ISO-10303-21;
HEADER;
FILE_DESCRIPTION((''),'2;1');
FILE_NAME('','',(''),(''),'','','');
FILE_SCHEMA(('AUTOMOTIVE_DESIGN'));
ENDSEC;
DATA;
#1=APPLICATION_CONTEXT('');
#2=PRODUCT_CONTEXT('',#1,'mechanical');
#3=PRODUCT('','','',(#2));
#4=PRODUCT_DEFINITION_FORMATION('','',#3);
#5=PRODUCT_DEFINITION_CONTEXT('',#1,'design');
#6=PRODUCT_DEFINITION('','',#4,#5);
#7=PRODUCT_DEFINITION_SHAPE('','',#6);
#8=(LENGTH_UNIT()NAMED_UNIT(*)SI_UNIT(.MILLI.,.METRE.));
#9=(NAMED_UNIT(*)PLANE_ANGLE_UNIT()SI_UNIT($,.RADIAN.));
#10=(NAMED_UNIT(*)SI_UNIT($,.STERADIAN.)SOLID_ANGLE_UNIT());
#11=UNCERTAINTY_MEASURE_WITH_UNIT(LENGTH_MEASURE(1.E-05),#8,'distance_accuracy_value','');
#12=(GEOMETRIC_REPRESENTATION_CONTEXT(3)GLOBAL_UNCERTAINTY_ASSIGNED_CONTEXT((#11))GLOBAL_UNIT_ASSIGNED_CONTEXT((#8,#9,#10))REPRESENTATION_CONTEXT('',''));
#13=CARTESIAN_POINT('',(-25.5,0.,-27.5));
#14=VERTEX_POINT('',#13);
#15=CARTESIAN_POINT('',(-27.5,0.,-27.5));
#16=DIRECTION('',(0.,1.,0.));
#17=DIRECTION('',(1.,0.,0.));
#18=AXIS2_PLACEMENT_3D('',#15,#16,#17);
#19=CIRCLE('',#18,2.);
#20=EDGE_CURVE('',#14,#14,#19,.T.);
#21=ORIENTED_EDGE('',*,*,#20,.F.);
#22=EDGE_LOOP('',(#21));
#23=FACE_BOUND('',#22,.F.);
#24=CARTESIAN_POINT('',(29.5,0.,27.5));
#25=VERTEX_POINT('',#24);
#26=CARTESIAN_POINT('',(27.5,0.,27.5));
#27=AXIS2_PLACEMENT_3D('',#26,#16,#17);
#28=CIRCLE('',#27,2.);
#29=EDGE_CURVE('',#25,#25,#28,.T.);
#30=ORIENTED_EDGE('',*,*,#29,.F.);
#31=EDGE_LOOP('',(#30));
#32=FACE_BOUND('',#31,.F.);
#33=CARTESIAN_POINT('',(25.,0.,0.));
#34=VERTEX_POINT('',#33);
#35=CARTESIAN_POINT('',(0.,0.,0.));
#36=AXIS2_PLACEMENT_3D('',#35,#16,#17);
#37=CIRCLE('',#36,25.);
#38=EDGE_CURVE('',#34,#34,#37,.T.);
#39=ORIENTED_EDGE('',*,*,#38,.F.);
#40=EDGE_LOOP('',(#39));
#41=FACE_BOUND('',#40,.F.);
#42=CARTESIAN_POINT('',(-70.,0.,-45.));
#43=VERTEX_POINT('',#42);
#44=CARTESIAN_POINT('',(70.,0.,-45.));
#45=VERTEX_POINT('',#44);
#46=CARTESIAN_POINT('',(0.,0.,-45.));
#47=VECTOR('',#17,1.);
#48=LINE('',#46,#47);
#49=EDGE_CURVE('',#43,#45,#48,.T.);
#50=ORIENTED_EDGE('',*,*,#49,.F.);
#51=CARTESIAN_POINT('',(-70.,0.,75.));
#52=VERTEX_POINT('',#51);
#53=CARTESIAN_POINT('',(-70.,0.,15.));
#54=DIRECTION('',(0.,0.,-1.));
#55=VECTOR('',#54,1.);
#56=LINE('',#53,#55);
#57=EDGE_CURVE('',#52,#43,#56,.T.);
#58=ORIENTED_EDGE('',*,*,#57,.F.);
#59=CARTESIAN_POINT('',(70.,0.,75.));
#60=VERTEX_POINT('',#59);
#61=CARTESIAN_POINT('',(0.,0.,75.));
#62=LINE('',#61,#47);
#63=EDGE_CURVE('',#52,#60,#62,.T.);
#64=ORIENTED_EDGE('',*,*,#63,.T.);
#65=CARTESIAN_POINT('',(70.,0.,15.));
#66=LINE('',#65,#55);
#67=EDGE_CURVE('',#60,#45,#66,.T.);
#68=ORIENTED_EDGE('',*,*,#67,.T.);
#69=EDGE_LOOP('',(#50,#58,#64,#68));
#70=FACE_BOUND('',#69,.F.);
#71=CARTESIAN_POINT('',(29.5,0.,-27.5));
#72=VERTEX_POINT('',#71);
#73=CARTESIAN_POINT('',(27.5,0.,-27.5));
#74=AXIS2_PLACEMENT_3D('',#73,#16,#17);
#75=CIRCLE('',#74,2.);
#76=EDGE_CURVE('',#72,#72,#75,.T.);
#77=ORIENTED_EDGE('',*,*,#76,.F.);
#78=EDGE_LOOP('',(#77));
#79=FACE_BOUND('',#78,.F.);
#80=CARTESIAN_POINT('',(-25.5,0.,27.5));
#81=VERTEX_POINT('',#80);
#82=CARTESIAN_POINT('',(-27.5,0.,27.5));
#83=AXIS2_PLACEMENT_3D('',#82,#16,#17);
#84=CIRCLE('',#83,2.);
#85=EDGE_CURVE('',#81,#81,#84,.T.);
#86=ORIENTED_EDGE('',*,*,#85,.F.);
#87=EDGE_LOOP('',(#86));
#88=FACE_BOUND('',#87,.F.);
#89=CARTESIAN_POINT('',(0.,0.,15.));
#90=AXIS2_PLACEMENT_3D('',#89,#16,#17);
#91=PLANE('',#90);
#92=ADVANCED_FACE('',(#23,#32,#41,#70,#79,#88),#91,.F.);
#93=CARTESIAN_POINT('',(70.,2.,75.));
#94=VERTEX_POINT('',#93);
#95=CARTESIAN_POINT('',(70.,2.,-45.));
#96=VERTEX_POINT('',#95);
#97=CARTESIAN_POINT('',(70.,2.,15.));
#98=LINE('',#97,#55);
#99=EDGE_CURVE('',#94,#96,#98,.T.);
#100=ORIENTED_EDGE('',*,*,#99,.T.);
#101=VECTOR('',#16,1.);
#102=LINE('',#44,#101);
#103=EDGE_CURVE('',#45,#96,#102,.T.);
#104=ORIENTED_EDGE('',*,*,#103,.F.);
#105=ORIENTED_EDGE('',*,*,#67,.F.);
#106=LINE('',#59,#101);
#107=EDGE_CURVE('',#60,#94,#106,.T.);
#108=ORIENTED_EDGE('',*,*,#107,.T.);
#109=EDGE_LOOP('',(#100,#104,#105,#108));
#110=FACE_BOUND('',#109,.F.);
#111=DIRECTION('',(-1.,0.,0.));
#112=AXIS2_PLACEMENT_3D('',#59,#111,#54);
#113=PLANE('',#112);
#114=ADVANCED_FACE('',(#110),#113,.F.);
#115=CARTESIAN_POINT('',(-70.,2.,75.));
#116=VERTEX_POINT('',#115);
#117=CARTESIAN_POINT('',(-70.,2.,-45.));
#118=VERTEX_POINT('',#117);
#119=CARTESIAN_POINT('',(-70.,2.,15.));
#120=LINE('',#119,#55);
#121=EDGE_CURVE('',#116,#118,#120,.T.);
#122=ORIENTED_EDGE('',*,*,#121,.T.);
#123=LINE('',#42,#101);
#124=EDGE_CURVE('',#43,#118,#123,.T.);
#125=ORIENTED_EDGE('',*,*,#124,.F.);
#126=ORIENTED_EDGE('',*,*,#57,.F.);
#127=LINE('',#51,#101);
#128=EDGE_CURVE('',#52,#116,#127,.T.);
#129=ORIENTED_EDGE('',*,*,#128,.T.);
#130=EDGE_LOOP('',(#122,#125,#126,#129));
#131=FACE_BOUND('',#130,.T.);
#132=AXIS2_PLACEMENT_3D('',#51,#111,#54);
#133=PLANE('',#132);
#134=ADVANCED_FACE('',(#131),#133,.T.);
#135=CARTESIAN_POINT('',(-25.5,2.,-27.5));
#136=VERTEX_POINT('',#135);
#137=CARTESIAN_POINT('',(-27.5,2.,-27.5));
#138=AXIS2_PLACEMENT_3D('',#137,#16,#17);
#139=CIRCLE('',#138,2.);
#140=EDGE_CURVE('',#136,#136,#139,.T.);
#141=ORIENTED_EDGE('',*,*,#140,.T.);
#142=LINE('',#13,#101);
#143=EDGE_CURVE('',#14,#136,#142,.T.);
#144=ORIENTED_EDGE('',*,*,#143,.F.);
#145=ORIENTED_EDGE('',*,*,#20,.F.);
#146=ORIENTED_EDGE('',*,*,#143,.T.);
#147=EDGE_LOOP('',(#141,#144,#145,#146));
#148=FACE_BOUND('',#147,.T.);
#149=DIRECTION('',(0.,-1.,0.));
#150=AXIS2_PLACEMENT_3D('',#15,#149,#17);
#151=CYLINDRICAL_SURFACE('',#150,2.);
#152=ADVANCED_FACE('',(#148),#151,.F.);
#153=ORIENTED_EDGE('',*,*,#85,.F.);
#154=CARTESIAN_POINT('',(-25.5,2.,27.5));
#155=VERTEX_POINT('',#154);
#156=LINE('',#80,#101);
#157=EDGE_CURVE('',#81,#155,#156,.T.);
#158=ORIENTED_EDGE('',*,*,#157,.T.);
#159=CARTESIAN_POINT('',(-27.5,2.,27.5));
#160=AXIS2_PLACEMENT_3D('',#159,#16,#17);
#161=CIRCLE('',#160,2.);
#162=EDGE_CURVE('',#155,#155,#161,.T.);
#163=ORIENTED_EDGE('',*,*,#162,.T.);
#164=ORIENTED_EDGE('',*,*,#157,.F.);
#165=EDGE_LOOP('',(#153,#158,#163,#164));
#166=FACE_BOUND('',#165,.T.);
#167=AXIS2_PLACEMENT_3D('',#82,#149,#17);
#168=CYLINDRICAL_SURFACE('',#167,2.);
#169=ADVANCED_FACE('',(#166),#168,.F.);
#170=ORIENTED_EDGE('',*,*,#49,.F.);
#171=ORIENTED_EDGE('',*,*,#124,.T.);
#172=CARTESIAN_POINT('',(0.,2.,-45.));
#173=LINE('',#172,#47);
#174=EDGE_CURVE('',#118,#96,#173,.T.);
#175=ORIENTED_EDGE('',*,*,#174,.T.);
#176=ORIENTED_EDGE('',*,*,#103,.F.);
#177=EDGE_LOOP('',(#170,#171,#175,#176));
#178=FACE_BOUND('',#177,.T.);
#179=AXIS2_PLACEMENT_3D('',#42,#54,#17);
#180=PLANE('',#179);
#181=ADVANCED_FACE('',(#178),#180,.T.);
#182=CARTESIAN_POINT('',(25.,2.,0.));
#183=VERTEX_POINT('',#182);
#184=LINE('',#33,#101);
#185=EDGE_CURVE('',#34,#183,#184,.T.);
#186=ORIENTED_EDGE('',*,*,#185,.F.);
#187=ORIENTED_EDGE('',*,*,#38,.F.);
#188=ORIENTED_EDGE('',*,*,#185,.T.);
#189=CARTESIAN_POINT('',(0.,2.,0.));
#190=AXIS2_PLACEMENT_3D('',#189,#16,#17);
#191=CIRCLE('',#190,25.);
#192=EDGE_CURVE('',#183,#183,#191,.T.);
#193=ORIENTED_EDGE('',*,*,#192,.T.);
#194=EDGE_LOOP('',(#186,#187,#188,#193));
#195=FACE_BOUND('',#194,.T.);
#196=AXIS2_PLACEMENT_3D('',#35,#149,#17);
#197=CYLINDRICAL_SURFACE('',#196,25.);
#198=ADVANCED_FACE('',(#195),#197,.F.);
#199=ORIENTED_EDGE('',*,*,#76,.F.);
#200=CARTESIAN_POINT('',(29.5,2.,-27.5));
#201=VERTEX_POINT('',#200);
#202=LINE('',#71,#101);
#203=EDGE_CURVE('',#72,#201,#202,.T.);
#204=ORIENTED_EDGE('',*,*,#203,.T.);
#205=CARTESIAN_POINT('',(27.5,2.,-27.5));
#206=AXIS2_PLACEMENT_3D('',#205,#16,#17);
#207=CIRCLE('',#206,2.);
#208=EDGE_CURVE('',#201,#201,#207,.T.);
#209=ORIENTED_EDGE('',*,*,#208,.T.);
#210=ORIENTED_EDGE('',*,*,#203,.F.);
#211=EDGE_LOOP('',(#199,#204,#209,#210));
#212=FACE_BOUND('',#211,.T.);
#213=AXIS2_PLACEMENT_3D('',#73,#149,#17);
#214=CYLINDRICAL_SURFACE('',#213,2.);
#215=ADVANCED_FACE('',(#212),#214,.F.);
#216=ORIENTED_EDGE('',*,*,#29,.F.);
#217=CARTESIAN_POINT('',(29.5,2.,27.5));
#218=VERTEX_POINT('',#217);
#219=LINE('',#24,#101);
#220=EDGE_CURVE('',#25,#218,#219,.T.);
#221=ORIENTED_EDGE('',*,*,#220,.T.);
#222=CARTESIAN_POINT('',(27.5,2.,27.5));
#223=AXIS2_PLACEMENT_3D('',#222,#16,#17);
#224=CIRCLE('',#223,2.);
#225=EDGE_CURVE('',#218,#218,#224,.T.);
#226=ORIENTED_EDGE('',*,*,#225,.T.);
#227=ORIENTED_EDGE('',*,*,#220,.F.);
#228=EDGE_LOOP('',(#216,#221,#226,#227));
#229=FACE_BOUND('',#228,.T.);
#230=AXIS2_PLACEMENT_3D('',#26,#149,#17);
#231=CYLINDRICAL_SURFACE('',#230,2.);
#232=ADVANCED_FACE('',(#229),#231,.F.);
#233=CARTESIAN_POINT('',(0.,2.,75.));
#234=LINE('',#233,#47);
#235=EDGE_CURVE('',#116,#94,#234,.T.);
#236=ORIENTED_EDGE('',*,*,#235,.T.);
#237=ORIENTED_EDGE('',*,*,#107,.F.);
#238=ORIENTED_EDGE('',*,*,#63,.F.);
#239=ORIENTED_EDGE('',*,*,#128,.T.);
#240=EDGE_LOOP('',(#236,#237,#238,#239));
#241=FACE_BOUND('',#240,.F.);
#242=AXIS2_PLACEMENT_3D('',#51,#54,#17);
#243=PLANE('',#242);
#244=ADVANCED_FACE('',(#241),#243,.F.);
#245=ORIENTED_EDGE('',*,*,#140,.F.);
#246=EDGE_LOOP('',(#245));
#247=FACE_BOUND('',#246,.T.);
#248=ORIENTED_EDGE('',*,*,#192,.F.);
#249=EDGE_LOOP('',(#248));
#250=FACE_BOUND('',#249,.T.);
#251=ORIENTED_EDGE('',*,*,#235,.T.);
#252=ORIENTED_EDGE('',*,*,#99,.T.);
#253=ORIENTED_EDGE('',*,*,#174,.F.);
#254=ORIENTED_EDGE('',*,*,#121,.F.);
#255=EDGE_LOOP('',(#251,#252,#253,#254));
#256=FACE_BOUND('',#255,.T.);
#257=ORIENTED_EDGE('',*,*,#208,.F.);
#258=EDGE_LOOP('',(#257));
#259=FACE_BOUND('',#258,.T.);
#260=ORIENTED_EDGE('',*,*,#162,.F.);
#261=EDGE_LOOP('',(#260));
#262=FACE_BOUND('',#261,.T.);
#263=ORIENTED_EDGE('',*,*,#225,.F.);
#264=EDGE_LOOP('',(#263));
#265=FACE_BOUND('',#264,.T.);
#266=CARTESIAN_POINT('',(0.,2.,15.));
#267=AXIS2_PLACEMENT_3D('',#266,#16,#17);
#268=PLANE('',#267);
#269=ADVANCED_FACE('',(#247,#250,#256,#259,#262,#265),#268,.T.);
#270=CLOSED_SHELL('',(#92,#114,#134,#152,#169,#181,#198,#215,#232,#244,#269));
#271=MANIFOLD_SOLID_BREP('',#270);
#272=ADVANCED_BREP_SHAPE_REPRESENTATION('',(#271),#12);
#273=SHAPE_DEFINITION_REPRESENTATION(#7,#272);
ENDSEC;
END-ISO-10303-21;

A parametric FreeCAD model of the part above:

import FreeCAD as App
import Part
import Sketcher


def add_polygon(sketch, points):
    """Adds a closed chain of lines whose ends are joined by coincident constraints."""
    first, n = sketch.GeometryCount, len(points)
    for a, b in zip(points, points[1:] + points[:1]):
        sketch.addGeometry(Part.LineSegment(App.Vector(*a, 0), App.Vector(*b, 0)), False)
    for i in range(n):
        sketch.addConstraint(Sketcher.Constraint("Coincident", first + i, 2, first + (i + 1) % n, 1))

doc = App.newDocument("Part")
body = doc.addObject("PartDesign::Body", "Body")

# Sketch on XZ plane
sketch1 = body.newObject("Sketcher::SketchObject", "Sketch")
sketch1.AttachmentSupport = (doc.getObject("XZ_Plane"), [""])
sketch1.MapMode = "FlatFace"
add_polygon(sketch1, [(-70, -45), (-70, 75), (70, 75), (70, -45)])  # lines 0-3
sketch1.addGeometry(Part.Circle(App.Vector(-27.5, 27.5, 0), App.Vector(0, 0, 1), 2), False)  # 4
sketch1.addGeometry(Part.Circle(App.Vector(27.5, 27.5, 0), App.Vector(0, 0, 1), 2), False)  # 5
sketch1.addGeometry(Part.Circle(App.Vector(-27.5, -27.5, 0), App.Vector(0, 0, 1), 2), False)  # 6
sketch1.addGeometry(Part.Circle(App.Vector(0, 0, 0), App.Vector(0, 0, 1), 25), False)  # 7
sketch1.addGeometry(Part.Circle(App.Vector(27.5, -27.5, 0), App.Vector(0, 0, 1), 2), False)  # 8
sketch1.addConstraint(Sketcher.Constraint("Vertical", 0))
sketch1.addConstraint(Sketcher.Constraint("Horizontal", 1))
sketch1.addConstraint(Sketcher.Constraint("Vertical", 2))
sketch1.addConstraint(Sketcher.Constraint("Horizontal", 3))
sketch1.addConstraint(Sketcher.Constraint("Coincident", 7, 3, -1, 1))
sketch1.addConstraint(Sketcher.Constraint("Equal", 4, 5))
sketch1.addConstraint(Sketcher.Constraint("Equal", 5, 6))
sketch1.addConstraint(Sketcher.Constraint("Equal", 6, 8))
sketch1.addConstraint(Sketcher.Constraint("Symmetric", 5, 3, 6, 3, -1, 1))
sketch1.addConstraint(Sketcher.Constraint("Symmetric", 4, 3, 8, 3, -1, 1))
sketch1.addConstraint(Sketcher.Constraint("Symmetric", 4, 3, 5, 3, -2))
sketch1.addConstraint(Sketcher.Constraint("Diameter", 4, 4.0))
sketch1.addConstraint(Sketcher.Constraint("Diameter", 7, 50.0))
sketch1.addConstraint(Sketcher.Constraint("DistanceX", 1, 1, 1, 2, 140.0))
sketch1.addConstraint(Sketcher.Constraint("DistanceY", 0, 1, 0, 2, 120.0))
sketch1.addConstraint(Sketcher.Constraint("DistanceX", 0, 2, -1, 1, 70.0))
sketch1.addConstraint(Sketcher.Constraint("DistanceY", -1, 1, 0, 2, 75.0))
sketch1.addConstraint(Sketcher.Constraint("DistanceX", 4, 3, 5, 3, 55.0))
sketch1.addConstraint(Sketcher.Constraint("DistanceY", 6, 3, 4, 3, 55.0))
pad1 = body.newObject("PartDesign::Pad", "Pad")
pad1.Profile = sketch1
pad1.Length = 2
pad1.Reversed = True

doc.recompute()
